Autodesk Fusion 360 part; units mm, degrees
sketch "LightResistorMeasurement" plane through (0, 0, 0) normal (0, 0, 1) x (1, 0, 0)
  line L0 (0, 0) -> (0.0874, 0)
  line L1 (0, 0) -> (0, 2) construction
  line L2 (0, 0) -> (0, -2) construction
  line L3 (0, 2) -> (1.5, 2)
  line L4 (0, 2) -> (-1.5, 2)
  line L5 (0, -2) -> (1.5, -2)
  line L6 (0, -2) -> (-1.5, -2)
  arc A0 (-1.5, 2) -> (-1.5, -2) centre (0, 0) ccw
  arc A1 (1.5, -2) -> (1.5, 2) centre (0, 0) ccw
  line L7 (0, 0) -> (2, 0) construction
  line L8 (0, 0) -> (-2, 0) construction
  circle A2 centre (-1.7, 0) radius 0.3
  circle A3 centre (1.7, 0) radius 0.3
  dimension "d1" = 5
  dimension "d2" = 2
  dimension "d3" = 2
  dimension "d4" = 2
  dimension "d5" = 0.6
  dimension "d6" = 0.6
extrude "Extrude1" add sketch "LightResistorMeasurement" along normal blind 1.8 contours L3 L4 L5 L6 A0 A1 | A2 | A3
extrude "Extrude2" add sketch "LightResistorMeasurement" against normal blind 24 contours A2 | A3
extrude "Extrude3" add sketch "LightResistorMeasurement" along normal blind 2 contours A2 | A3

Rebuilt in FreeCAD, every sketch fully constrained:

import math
import FreeCAD as App
import Part
import Sketcher
from FreeCAD import Vector

doc = App.newDocument("Part")
body = doc.addObject("PartDesign::Body", "Body")

# Sketch on XY plane
sketch1 = doc.addObject("Sketcher::SketchObject", "Sketch")
body.addObject(sketch1)
sketch1.AttachmentSupport = (doc.XY_Plane, [""])
sketch1.MapMode = "FlatFace"
sketch1.addGeometry(Part.LineSegment(Vector(1.5, 2, 0), Vector(-1.5, 2, 0)), False)
sketch1.addGeometry(Part.ArcOfCircle(Part.Circle(Vector(0, 0, 0), Vector(0, 0, 1), 2.5), math.radians(126.869898), math.radians(233.130102)), False)
sketch1.addGeometry(Part.LineSegment(Vector(-1.5, -2, 0), Vector(1.5, -2, 0)), False)
sketch1.addGeometry(Part.ArcOfCircle(Part.Circle(Vector(0, 0, 0), Vector(0, 0, 1), 2.5), math.radians(-53.130102), math.radians(53.130102)), False)
sketch1.addConstraint(Sketcher.Constraint("Coincident", 0, 2, 1, 1))
sketch1.addConstraint(Sketcher.Constraint("Coincident", 1, 2, 2, 1))
sketch1.addConstraint(Sketcher.Constraint("Coincident", 2, 2, 3, 1))
sketch1.addConstraint(Sketcher.Constraint("Coincident", 3, 2, 0, 1))
sketch1.addConstraint(Sketcher.Constraint("Horizontal", 0))
sketch1.addConstraint(Sketcher.Constraint("Horizontal", 2))
sketch1.addConstraint(Sketcher.Constraint("Coincident", 1, 3, -1, 1))
sketch1.addConstraint(Sketcher.Constraint("Coincident", 3, 3, -1, 1))
sketch1.addConstraint(Sketcher.Constraint("Equal", 1, 3))
sketch1.addConstraint(Sketcher.Constraint("Vertical", 0, 2, 1, 2))
sketch1.addConstraint(Sketcher.Constraint("Radius", 1, 2.5))
sketch1.addConstraint(Sketcher.Constraint("DistanceY", -1, 1, 0, 2, 2.0))
pad1 = doc.addObject("PartDesign::Pad", "Pad")
body.addObject(pad1)
pad1.Profile = sketch1
pad1.Length = 1.8

# Sketch on XY plane
sketch2 = doc.addObject("Sketcher::SketchObject", "Sketch001")
body.addObject(sketch2)
sketch2.AttachmentSupport = (doc.XY_Plane, [""])
sketch2.MapMode = "FlatFace"
sketch2.addGeometry(Part.Circle(Vector(-1.7, 0, 0), Vector(0, 0, 1), 0.3), False)
sketch2.addGeometry(Part.Circle(Vector(1.7, 0, 0), Vector(0, 0, 1), 0.3), False)
sketch2.addConstraint(Sketcher.Constraint("Equal", 0, 1))
sketch2.addConstraint(Sketcher.Constraint("Symmetric", 0, 3, 1, 3, -1, 1))
sketch2.addConstraint(Sketcher.Constraint("PointOnObject", 0, 3, -1))
sketch2.addConstraint(Sketcher.Constraint("Diameter", 0, 0.6))
sketch2.addConstraint(Sketcher.Constraint("DistanceX", 0, 3, -1, 1, 1.7))
pad2 = doc.addObject("PartDesign::Pad", "Pad001")
body.addObject(pad2)
pad2.Profile = sketch2
pad2.Length = 24
pad2.Reversed = True

# Sketch on XY plane
sketch3 = doc.addObject("Sketcher::SketchObject", "Sketch002")
body.addObject(sketch3)
sketch3.AttachmentSupport = (doc.XY_Plane, [""])
sketch3.MapMode = "FlatFace"
sketch3.addGeometry(Part.Circle(Vector(-1.7, 0, 0), Vector(0, 0, 1), 0.3), False)
sketch3.addGeometry(Part.Circle(Vector(1.7, 0, 0), Vector(0, 0, 1), 0.3), False)
sketch3.addConstraint(Sketcher.Constraint("Equal", 0, 1))
sketch3.addConstraint(Sketcher.Constraint("Symmetric", 0, 3, 1, 3, -1, 1))
sketch3.addConstraint(Sketcher.Constraint("PointOnObject", 0, 3, -1))
sketch3.addConstraint(Sketcher.Constraint("Diameter", 0, 0.6))
sketch3.addConstraint(Sketcher.Constraint("DistanceX", 0, 3, -1, 1, 1.7))
pad3 = doc.addObject("PartDesign::Pad", "Pad002")
body.addObject(pad3)
pad3.Profile = sketch3
pad3.Length = 2

doc.recompute()
